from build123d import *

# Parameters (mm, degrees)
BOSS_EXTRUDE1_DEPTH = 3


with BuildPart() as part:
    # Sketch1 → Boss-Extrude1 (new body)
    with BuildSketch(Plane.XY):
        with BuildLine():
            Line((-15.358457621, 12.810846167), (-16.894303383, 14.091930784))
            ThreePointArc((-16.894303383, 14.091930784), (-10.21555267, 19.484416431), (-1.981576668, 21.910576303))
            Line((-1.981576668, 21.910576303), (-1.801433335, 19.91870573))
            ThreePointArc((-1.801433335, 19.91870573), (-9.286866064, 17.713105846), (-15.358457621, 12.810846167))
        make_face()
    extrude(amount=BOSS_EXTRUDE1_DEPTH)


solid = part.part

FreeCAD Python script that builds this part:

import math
import FreeCAD as App
import Part
import Sketcher

doc = App.newDocument("Part")
body = doc.addObject("PartDesign::Body", "Body")

# Sketch on XY plane
sketch1 = body.newObject("Sketcher::SketchObject", "Sketch")
sketch1.AttachmentSupport = (doc.getObject("XY_Plane"), [""])
sketch1.MapMode = "FlatFace"
sketch1.addGeometry([
    Part.LineSegment(App.Vector(-16.9, 14.1, 0), App.Vector(-15.4, 12.8, 0)),
    Part.ArcOfCircle(Part.Circle(App.Vector(0, 0, 0), App.Vector(0, 0, 1), 20), math.radians(95), math.radians(140)),
    Part.LineSegment(App.Vector(-1.8, 19.9, 0), App.Vector(-2, 21.9, 0)),
    Part.ArcOfCircle(Part.Circle(App.Vector(0, 0, 0), App.Vector(0, 0, 1), 22), math.radians(95), math.radians(140)),
], False)
sketch1.addConstraint([
    Sketcher.Constraint("Coincident", 0, 2, 1, 2),
    Sketcher.Constraint("Coincident", 1, 1, 2, 1),
    Sketcher.Constraint("Coincident", 2, 2, 3, 1),
    Sketcher.Constraint("Coincident", 3, 2, 0, 1),
    Sketcher.Constraint("Coincident", 1, 3, -1, 1),
    Sketcher.Constraint("Coincident", 3, 3, -1, 1),
    Sketcher.Constraint("Radius", 1, 20.0),
    Sketcher.Constraint("Radius", 3, 22.0),
    Sketcher.Constraint("DistanceY", -1, 1, 3, 2, 14.091931),
    Sketcher.Constraint("DistanceY", 0, 2, 1, 1, 7.10786),
    Sketcher.Constraint("DistanceY", 1, 1, 2, 2, 1.991871),
    Sketcher.Constraint("DistanceX", 0, 2, 2, 2, 13.376881),
])
pad1 = body.newObject("PartDesign::Pad", "Pad")
pad1.Profile = sketch1
pad1.Length = 3

doc.recompute()
